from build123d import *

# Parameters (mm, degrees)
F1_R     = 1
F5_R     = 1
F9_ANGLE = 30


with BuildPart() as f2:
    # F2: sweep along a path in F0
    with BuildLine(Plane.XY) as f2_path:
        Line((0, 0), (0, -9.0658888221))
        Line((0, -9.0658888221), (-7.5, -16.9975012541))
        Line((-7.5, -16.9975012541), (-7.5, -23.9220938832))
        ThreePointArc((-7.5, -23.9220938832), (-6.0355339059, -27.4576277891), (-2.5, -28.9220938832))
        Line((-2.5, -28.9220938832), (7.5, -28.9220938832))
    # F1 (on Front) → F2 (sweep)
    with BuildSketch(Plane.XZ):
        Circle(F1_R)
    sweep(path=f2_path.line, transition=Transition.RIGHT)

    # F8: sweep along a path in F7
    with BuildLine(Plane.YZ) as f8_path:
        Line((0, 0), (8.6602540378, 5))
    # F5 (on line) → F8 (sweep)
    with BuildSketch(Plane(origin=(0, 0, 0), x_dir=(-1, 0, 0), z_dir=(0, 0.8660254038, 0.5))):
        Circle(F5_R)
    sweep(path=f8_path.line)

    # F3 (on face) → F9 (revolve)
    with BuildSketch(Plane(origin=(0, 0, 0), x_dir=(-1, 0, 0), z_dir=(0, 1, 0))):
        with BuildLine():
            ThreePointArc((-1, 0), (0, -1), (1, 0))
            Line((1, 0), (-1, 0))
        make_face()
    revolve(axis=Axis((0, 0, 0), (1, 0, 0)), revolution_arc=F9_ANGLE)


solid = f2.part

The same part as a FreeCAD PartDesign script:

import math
import FreeCAD as App
import Part
import Sketcher
Q = App.Units.Quantity

doc = App.newDocument("Part")
body = doc.addObject("PartDesign::Body", "Body")

# Sketch on XZ plane
sketch1 = body.newObject("Sketcher::SketchObject", "Sketch")
sketch1.AttachmentSupport = (doc.getObject("XZ_Plane"), [""])
sketch1.MapMode = "FlatFace"
sketch1.addGeometry(Part.Circle(App.Vector(0, 0, 0), App.Vector(0, 0, 1), 1), False)
sketch1.addConstraint([
    Sketcher.Constraint("Coincident", 0, 3, -1, 1),
    Sketcher.Constraint("Diameter", 0, Q("2 mm")),
])

# Sketch on XY plane
sketch2 = body.newObject("Sketcher::SketchObject", "Sketch001")
sketch2.AttachmentSupport = (doc.getObject("XY_Plane"), [""])
sketch2.MapMode = "FlatFace"
sketch2.addGeometry([
    Part.LineSegment(App.Vector(0, 0, 0), App.Vector(0, -9.065889, 0)),  # 0
    Part.LineSegment(App.Vector(0, -9.065889, 0), App.Vector(-7.5, -16.997501, 0)),  # 1
    Part.LineSegment(App.Vector(-7.5, -16.997501, 0), App.Vector(-7.5, -23.922094, 0)),  # 2
    Part.ArcOfCircle(Part.Circle(App.Vector(-2.5, -23.922094, 0), App.Vector(0, 0, 1), 5), math.radians(180), math.radians(270)),  # 3
    Part.LineSegment(App.Vector(-2.5, -28.922094, 0), App.Vector(7.5, -28.922094, 0)),  # 4
], False)
sketch2.addConstraint([
    Sketcher.Constraint("Coincident", 0, 2, 1, 1),
    Sketcher.Constraint("Coincident", 1, 2, 2, 1),
    Sketcher.Constraint("Tangent", 2, 2, 3, 1),
    Sketcher.Constraint("Tangent", 3, 2, 4, 1),
    Sketcher.Constraint("Vertical", 0),
    Sketcher.Constraint("Vertical", 2),
    Sketcher.Constraint("Horizontal", 4),
    Sketcher.Constraint("Coincident", 0, 1, -1, 1),
    Sketcher.Constraint("Radius", 3, Q("5 mm")),
    Sketcher.Constraint("DistanceX", 4, 1, 4, 2, Q("10 mm")),
    Sketcher.Constraint("DistanceX", 3, 3, -1, 1, Q("2.5 mm")),
    Sketcher.Constraint("DistanceY", 0, 2, 0, 1, Q("9.065889 mm")),
    Sketcher.Constraint("DistanceY", 1, 2, -1, 1, Q("16.997501 mm")),
    Sketcher.Constraint("DistanceY", 2, 2, 2, 1, Q("6.924593 mm")),
])
doc.recompute()

additivepipe = body.newObject("PartDesign::AdditivePipe", "AdditivePipe")
additivepipe.Profile = sketch1
additivepipe.Spine = (sketch2, ["Edge1", "Edge2", "Edge3", "Edge4", "Edge5"])
additivepipe.Transition = "Right corner"

# Sketch on an angled plane
sketch3 = body.newObject("Sketcher::SketchObject", "Sketch002")
sketch3.Placement = App.Placement(App.Vector(0, 0, 0), App.Rotation(App.Vector(-1, 0, 0), App.Vector(0, -0.5, 0.866025404), App.Vector(0, 0.866025404, 0.5), "ZXY"))
sketch3.addGeometry(Part.Circle(App.Vector(0, 0, 0), App.Vector(0, 0, 1), 1), False)
sketch3.addConstraint([
    Sketcher.Constraint("Coincident", 0, 3, -1, 1),
    Sketcher.Constraint("Diameter", 0, Q("2 mm")),
])

# Sketch on an angled plane
sketch4 = body.newObject("Sketcher::SketchObject", "Sketch003")
sketch4.Placement = App.Placement(App.Vector(0, 0, 0), App.Rotation(App.Vector(0, -0.866025404, -0.5), App.Vector(1, 0, 0), App.Vector(0, -0.5, 0.866025404), "ZXY"))
sketch4.addGeometry(Part.LineSegment(App.Vector(0, 0, 0), App.Vector(-10, 0, 0)), False)
sketch4.addConstraint([
    Sketcher.Constraint("Horizontal", 0),
    Sketcher.Constraint("Coincident", 0, 1, -1, 1),
    Sketcher.Constraint("DistanceX", 0, 2, 0, 1, Q("10 mm")),
])
doc.recompute()

additivepipe2 = body.newObject("PartDesign::AdditivePipe", "AdditivePipe001")
additivepipe2.Profile = sketch3
additivepipe2.Spine = (sketch4, ["Edge1"])

# Sketch on XZ plane
sketch5 = body.newObject("Sketcher::SketchObject", "Sketch004")
sketch5.AttachmentSupport = (doc.getObject("XZ_Plane"), [""])
sketch5.MapMode = "FlatFace"
sketch5.addGeometry([
    Part.ArcOfCircle(Part.Circle(App.Vector(0, 0, 0), App.Vector(0, 0, 1), 1), math.radians(180), math.radians(360)),
    Part.LineSegment(App.Vector(-1, 0, 0), App.Vector(1, 0, 0)),
], False)
sketch5.addConstraint([
    Sketcher.Constraint("Coincident", 0, 1, 1, 1),
    Sketcher.Constraint("Coincident", 1, 2, 0, 2),
    Sketcher.Constraint("Horizontal", 1),
    Sketcher.Constraint("Coincident", 0, 3, -1, 1),
    Sketcher.Constraint("PointOnObject", 0, 1, -1),
    Sketcher.Constraint("Radius", 0, Q("1 mm")),
])
revolution = body.newObject("PartDesign::Revolution", "Revolution")
revolution.Profile = sketch5
revolution.ReferenceAxis = (sketch5, ["H_Axis"])
revolution.Angle = 30

doc.recompute()
